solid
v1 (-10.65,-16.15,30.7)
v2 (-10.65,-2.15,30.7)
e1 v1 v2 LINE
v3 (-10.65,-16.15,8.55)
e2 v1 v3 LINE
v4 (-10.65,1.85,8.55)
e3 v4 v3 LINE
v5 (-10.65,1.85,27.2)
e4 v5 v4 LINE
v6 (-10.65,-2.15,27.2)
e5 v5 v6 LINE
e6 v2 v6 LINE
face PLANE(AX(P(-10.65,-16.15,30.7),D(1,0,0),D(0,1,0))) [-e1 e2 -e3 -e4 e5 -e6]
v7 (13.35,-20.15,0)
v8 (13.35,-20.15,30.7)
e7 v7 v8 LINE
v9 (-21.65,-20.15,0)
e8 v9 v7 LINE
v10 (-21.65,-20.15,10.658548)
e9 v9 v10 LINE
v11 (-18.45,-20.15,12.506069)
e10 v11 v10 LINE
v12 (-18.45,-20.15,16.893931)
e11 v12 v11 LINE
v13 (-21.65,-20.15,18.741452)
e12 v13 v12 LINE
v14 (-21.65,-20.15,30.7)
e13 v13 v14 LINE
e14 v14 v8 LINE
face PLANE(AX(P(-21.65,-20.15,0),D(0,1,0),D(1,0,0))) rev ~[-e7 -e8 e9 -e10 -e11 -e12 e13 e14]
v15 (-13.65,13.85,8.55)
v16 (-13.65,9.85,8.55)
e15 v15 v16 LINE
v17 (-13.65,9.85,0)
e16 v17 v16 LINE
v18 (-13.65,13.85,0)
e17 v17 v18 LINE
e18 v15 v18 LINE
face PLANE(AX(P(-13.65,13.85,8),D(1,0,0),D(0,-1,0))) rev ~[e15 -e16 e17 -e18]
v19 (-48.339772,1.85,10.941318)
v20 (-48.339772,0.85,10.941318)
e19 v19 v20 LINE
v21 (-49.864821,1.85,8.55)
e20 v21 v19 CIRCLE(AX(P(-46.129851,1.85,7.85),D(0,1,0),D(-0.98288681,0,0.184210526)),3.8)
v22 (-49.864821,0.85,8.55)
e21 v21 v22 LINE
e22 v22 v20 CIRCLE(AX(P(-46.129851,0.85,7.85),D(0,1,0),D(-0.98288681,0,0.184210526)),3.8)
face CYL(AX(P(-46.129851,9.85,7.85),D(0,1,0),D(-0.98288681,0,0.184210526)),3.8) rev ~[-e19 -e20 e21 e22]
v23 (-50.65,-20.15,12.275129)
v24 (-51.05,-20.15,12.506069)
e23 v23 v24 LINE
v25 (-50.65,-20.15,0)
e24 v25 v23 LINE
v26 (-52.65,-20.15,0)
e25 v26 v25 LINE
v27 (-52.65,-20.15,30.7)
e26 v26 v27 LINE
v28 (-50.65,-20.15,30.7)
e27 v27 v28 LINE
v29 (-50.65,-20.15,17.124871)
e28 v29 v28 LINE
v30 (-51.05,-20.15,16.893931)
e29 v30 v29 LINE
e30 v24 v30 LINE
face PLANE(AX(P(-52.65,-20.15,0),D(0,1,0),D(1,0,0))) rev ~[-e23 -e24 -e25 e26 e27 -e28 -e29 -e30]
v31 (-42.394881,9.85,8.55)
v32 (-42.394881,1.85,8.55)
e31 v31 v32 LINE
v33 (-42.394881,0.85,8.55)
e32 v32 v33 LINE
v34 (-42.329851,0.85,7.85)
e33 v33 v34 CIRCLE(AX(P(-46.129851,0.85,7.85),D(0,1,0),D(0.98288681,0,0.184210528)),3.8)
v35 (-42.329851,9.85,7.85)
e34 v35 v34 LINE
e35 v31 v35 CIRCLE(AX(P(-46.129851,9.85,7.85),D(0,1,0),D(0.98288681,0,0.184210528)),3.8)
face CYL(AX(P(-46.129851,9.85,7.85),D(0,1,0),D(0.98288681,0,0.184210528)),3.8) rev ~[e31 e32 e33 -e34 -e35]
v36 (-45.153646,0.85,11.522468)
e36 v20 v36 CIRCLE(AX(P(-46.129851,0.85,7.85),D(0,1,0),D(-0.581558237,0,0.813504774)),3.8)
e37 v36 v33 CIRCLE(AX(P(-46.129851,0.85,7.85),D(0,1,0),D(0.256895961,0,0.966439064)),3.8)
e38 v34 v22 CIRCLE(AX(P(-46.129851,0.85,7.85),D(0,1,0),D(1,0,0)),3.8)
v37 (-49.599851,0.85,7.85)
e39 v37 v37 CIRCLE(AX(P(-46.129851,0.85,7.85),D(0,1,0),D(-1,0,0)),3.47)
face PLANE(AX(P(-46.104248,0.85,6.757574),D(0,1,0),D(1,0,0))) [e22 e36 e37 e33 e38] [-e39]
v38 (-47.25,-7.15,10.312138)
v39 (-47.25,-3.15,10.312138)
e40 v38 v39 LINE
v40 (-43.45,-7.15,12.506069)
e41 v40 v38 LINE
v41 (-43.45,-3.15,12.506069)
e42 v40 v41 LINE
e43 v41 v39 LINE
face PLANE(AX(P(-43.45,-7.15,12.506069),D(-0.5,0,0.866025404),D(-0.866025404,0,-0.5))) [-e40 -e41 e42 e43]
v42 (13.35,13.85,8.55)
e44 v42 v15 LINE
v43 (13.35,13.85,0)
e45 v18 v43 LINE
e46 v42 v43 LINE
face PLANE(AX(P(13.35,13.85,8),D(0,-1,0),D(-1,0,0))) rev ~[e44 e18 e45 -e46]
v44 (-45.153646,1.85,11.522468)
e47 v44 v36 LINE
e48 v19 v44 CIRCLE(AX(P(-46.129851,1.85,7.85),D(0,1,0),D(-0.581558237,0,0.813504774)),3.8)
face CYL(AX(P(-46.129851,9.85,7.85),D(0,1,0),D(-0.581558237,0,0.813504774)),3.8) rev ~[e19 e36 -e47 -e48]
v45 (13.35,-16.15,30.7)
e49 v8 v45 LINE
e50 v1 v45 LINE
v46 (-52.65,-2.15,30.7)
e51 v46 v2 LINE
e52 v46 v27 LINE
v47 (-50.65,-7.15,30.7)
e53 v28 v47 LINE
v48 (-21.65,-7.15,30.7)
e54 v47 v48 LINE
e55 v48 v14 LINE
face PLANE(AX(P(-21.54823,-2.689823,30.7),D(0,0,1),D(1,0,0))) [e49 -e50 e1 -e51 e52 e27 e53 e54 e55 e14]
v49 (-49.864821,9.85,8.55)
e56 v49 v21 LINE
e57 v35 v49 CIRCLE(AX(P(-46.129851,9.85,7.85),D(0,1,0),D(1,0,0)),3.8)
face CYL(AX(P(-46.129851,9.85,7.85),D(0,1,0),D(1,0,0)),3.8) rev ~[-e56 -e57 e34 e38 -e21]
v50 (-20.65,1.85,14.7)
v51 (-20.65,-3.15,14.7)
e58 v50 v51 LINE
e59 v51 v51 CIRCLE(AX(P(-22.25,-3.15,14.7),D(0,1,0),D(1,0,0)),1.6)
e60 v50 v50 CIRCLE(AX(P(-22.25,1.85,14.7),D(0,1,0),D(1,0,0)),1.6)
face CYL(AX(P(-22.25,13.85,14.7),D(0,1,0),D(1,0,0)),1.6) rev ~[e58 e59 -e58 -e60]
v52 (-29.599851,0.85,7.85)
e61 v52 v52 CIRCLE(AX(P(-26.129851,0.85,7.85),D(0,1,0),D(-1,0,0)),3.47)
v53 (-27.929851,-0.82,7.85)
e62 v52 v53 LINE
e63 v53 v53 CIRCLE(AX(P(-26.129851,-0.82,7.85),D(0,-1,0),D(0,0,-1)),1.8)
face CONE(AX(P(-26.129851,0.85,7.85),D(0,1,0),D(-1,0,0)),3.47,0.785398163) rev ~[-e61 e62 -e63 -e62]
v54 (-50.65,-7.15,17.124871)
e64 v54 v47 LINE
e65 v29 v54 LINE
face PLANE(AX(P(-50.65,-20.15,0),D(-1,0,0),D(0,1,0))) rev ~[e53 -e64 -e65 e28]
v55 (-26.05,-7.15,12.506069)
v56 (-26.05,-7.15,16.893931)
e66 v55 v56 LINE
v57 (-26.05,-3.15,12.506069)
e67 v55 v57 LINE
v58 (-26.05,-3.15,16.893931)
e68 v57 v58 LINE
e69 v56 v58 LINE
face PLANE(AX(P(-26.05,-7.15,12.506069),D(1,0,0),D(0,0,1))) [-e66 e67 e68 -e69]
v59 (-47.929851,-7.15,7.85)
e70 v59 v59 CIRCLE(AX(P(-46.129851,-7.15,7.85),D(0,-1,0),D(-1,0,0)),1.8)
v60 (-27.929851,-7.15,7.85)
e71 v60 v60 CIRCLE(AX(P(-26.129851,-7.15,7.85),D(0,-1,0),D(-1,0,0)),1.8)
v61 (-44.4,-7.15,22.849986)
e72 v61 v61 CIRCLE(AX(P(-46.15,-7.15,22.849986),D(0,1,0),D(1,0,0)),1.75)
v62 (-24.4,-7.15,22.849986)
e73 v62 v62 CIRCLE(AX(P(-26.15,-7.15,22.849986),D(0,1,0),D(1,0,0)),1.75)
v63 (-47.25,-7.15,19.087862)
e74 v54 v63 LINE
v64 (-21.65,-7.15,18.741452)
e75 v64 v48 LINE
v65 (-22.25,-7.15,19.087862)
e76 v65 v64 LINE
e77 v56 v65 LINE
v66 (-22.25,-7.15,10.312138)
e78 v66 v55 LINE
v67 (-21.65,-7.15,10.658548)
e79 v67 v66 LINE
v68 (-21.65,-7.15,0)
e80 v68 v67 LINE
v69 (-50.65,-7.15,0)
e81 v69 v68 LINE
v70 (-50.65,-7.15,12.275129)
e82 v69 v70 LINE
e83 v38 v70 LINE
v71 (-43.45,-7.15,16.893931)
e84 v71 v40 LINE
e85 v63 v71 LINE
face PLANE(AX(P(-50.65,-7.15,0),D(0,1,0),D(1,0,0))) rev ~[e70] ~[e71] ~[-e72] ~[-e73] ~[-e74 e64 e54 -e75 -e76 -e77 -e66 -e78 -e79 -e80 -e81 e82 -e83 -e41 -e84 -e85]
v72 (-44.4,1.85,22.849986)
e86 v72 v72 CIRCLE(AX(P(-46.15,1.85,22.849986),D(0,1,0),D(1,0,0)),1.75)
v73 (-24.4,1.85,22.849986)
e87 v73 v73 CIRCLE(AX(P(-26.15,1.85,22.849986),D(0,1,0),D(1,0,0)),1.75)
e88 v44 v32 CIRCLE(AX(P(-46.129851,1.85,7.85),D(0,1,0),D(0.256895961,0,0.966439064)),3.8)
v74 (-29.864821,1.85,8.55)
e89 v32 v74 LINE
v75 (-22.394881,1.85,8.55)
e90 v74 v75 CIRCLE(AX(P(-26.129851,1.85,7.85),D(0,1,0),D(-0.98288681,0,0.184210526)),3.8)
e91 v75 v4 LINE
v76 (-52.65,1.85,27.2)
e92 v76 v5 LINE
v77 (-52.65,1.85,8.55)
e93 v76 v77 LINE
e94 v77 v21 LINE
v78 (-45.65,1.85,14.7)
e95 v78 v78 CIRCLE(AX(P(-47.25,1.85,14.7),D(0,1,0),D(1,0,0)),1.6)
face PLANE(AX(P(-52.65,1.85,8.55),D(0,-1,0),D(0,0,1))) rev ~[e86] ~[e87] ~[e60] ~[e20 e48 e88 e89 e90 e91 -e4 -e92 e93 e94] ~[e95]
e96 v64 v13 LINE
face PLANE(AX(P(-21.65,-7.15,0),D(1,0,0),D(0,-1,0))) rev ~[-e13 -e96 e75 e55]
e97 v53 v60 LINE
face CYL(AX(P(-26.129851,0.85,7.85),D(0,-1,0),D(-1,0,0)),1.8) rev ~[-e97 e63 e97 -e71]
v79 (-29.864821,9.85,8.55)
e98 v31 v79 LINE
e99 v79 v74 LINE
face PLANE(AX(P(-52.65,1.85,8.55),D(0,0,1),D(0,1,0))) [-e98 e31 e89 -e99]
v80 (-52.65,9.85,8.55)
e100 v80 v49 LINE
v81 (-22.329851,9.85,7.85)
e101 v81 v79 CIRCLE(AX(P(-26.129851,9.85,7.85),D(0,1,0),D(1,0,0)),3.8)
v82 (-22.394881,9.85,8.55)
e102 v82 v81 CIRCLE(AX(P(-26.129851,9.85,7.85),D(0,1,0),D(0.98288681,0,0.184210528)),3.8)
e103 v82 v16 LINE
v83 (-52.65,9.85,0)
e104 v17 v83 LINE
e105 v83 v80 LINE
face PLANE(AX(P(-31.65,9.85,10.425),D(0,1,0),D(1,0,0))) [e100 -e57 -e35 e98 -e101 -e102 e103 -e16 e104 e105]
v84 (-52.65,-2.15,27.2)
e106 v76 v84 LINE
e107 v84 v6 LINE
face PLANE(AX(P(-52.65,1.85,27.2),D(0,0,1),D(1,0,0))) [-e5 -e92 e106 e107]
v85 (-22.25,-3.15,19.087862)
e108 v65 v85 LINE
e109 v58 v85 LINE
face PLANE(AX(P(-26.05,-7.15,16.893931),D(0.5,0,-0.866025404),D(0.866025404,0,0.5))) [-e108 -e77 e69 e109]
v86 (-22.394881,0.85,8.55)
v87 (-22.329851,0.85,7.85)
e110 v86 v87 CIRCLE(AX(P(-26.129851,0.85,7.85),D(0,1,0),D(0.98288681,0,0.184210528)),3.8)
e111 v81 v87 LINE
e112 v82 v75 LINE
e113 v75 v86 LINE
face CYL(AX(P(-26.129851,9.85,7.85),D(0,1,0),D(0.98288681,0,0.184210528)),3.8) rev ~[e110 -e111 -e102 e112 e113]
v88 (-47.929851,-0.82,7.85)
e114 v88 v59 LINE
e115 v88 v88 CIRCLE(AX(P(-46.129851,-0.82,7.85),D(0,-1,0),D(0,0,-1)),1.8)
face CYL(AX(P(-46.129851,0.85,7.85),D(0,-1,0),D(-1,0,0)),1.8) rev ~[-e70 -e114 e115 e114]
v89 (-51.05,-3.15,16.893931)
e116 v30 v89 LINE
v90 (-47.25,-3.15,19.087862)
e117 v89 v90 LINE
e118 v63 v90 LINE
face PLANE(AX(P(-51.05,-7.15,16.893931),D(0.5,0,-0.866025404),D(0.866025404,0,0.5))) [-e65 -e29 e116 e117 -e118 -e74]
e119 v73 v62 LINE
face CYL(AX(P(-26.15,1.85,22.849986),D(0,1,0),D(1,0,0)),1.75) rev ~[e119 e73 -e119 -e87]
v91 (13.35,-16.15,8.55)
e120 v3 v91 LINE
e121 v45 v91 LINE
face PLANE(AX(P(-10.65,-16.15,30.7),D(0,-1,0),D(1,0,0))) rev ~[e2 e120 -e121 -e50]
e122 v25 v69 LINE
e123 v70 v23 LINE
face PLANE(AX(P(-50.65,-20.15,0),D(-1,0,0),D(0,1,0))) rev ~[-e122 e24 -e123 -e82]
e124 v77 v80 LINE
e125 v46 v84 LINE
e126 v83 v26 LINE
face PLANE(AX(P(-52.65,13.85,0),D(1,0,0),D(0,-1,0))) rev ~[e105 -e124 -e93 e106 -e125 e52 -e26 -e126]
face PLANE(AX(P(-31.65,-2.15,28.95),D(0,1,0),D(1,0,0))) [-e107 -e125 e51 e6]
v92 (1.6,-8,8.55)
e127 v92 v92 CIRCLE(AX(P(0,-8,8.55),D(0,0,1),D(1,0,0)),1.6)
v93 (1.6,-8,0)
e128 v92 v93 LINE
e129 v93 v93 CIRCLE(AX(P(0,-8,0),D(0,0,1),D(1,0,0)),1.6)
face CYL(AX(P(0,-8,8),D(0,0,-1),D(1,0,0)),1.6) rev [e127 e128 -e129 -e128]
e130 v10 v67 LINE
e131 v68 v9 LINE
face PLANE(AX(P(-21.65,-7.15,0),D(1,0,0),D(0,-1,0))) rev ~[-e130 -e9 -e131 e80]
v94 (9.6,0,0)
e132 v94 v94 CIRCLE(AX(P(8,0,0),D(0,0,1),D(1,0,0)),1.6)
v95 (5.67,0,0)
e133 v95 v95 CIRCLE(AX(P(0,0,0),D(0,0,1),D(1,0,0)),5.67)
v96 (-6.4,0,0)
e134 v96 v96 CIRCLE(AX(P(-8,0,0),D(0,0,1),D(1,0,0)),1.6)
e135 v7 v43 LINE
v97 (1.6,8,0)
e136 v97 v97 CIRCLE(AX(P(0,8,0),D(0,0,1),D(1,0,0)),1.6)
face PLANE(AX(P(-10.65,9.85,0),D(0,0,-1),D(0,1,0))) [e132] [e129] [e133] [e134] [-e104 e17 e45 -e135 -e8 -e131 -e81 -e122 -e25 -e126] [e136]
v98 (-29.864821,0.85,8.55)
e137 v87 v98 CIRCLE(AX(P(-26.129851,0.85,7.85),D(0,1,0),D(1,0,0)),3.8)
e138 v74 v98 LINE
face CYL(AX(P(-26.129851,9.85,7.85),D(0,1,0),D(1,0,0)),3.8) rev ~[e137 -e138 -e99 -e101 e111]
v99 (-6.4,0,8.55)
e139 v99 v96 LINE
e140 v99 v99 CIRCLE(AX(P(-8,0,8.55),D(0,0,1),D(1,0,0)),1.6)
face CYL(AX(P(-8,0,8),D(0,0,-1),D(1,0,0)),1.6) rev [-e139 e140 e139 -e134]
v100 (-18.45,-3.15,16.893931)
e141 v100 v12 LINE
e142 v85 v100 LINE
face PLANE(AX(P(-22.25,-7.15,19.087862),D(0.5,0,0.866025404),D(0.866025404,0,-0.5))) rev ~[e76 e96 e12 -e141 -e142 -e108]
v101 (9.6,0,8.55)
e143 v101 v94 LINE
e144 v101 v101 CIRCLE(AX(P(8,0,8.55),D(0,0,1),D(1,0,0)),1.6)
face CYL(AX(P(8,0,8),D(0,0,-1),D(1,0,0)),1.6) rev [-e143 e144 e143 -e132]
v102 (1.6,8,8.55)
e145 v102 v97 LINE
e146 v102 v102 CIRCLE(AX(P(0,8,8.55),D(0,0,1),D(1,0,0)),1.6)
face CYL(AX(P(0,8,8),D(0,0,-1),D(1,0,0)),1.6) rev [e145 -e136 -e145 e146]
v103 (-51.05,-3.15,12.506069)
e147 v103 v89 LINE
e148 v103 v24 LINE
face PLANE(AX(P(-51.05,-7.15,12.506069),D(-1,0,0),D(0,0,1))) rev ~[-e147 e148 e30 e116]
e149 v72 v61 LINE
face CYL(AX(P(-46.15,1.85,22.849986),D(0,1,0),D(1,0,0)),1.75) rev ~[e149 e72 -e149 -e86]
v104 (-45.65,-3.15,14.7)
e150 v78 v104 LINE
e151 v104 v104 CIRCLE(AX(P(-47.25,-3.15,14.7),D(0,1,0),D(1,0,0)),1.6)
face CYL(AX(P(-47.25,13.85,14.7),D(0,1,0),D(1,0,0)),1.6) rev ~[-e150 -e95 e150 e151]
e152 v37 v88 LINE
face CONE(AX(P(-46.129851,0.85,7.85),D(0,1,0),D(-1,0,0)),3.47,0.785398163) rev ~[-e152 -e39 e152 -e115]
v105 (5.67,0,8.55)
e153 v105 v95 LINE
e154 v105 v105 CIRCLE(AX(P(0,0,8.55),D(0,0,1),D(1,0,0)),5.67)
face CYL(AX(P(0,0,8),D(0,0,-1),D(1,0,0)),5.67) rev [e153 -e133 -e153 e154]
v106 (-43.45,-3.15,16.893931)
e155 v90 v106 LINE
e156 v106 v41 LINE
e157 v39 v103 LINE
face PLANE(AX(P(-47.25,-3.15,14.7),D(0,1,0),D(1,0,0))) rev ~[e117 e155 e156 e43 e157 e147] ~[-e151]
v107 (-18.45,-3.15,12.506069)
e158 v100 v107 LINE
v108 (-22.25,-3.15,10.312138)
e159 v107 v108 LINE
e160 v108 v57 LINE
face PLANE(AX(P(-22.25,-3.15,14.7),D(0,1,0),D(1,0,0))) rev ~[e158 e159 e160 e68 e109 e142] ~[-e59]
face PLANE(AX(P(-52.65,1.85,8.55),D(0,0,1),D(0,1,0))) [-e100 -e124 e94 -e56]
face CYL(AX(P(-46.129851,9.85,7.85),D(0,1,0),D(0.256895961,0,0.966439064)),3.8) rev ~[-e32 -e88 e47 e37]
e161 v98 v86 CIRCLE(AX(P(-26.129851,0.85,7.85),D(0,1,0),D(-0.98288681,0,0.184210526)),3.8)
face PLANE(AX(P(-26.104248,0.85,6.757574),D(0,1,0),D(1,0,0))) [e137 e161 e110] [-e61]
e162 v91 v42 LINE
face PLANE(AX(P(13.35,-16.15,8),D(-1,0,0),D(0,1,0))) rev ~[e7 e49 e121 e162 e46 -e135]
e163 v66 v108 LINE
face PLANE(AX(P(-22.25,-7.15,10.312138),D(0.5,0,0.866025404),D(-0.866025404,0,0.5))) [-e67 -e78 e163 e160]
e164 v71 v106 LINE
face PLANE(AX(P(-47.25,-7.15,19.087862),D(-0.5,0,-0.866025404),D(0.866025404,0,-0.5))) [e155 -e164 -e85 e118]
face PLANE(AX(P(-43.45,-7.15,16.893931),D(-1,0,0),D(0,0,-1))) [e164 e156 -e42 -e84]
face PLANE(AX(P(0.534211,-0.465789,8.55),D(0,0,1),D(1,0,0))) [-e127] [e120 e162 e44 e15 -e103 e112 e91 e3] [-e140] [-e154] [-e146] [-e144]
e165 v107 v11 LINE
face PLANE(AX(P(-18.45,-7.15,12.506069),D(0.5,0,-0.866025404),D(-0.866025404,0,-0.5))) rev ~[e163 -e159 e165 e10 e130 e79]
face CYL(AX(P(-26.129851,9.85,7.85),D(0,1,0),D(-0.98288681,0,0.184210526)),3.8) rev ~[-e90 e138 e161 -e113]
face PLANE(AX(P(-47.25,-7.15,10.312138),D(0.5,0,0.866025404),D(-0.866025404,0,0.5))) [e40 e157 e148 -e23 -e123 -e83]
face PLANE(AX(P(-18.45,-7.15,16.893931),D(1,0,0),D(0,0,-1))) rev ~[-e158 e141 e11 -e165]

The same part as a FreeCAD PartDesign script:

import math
import FreeCAD as App
import Part
import Sketcher

V = App.Vector
Q = App.Units.Quantity


def add_polygon(sketch, points):
    """Adds a closed chain of lines whose ends are joined by coincident constraints."""
    first, n = sketch.GeometryCount, len(points)
    for a, b in zip(points, points[1:] + points[:1]):
        sketch.addGeometry(Part.LineSegment(App.Vector(*a, 0), App.Vector(*b, 0)), False)
    for i in range(n):
        sketch.addConstraint(Sketcher.Constraint("Coincident", first + i, 2, first + (i + 1) % n, 1))

doc = App.newDocument("Part")
params = doc.addObject("Spreadsheet::Sheet", "Params")
for row, (alias, value) in enumerate([
    ("sketch1_diameter", "3.2 mm"),
    ("sketch1_diameter2", "11.34 mm"),
    ("sketch1_width", "2 mm"),
    ("sketch1_width2", "29 mm"),
    ("sketch1_width3", "35 mm"),
    ("pad1_length", "30.7 mm"),
    ("sketch2_diameter", "3.2 mm"),
    ("sketch2_diameter2", "11.34 mm"),
    ("sketch2_width", "24 mm"),
    ("sketch2_height", "30 mm"),
    ("pocket1_length", "22.7 mm"),
    ("sketch3_width", "8 mm"),
    ("sketch3_height", "12.3 mm"),
    ("pocket2_length", "42 mm"),
    ("sketch4_diameter", "3.2 mm"),
    ("sketch5_diameter", "3.2 mm"),
    ("sketch5_width", "42 mm"),
    ("sketch5_height", "20.85 mm"),
    ("pocket4_length", "4 mm"),
    ("sketch6_width", "4 mm"),
    ("sketch6_height", "8 mm"),
    ("pad2_length", "3 mm"),
    ("sketch7_width", "42 mm"),
    ("sketch7_height", "9.85 mm"),
    ("pocket5_length", "12 mm"),
    ("sketch8_radius", "3.8 mm"),
    ("pocket6_length", "9 mm"),
    ("sketch9_diameter", "3.5 mm"),
    ("pocket8_length", "4 mm"),
    ("pocket8_length2", "23 mm"),
    ("sketch11_diameter", "3.6 mm"),
    ("hole_diameter", "3.6 mm"),
    ("hole_csink_diameter", "6.94 mm"),
    ("sketch12_width", "42 mm"),
    ("sketch12_height", "3.5 mm"),
    ("pocket9_length", "4 mm"),
    ("sketch13_diameter", "3.2 mm"),
    ("sketch13_diameter2", "11.34 mm"),
    ("sketch13_width", "24 mm"),
    ("sketch13_width2", "27 mm"),
    ("sketch13_height", "26 mm"),
    ("pad3_length", "0.55 mm"),
], start=1):
    params.set(f"A{row}", alias)
    params.set(f"B{row}", "=" + value)
    params.setAlias(f"B{row}", alias)

body = doc.addObject("PartDesign::Body", "Body")

sketch1 = doc.addObject("Sketcher::SketchObject", "Sketch")
body.addObject(sketch1)
sketch1.AttachmentSupport = (doc.XY_Plane, [""])
sketch1.MapMode = "FlatFace"
add_polygon(sketch1, [(-52.6, 13.8), (-52.6, -20.1), (-50.6, -20.1), (-50.6, -7.2), (-21.6, -7.2), (-21.6, -20.1), (13.3, -20.1), (13.3, 13.8)])
sketch1.addGeometry(Part.Circle(V(0, -8, 0), V(0, 0, 1), 1.6), False)
sketch1.addGeometry(Part.Circle(V(-8, 0, 0), V(0, 0, 1), 1.6), False)
sketch1.addGeometry(Part.Circle(V(0, 0, 0), V(0, 0, 1), 5.7), False)
sketch1.addGeometry(Part.Circle(V(0, 8, 0), V(0, 0, 1), 1.6), False)
sketch1.addGeometry(Part.Circle(V(8, 0, 0), V(0, 0, 1), 1.6), False)
sketch1.addConstraint(Sketcher.Constraint("Vertical", 0))
sketch1.addConstraint(Sketcher.Constraint("Horizontal", 1))
sketch1.addConstraint(Sketcher.Constraint("Vertical", 2))
sketch1.addConstraint(Sketcher.Constraint("Horizontal", 3))
sketch1.addConstraint(Sketcher.Constraint("Vertical", 4))
sketch1.addConstraint(Sketcher.Constraint("Horizontal", 5))
sketch1.addConstraint(Sketcher.Constraint("Vertical", 6))
sketch1.addConstraint(Sketcher.Constraint("Horizontal", 7))
sketch1.addConstraint(Sketcher.Constraint("Coincident", 10, 3, -1, 1))
sketch1.addConstraint(Sketcher.Constraint("Equal", 8, 9))
sketch1.addConstraint(Sketcher.Constraint("Equal", 9, 11))
sketch1.addConstraint(Sketcher.Constraint("Equal", 11, 12))
sketch1.addConstraint(Sketcher.Constraint("Symmetric", 8, 3, 11, 3, -1, 1))
sketch1.addConstraint(Sketcher.Constraint("Symmetric", 9, 3, 12, 3, -1, 1))
sketch1.addConstraint(Sketcher.Constraint("PointOnObject", 8, 3, -2))
sketch1.addConstraint(Sketcher.Constraint("PointOnObject", 9, 3, -1))
sketch1.addConstraint(Sketcher.Constraint("Horizontal", 1, 2, 4, 2))
sketch1.addConstraint(Sketcher.Constraint("Diameter", 8, Q("3.2 mm")))
sketch1.addConstraint(Sketcher.Constraint("Diameter", 10, Q("11.34 mm")))
sketch1.addConstraint(Sketcher.Constraint("DistanceX", 1, 1, 1, 2, Q("2 mm")))
sketch1.addConstraint(Sketcher.Constraint("DistanceX", 3, 1, 3, 2, Q("29 mm")))
sketch1.addConstraint(Sketcher.Constraint("DistanceX", 5, 1, 5, 2, Q("35 mm")))
sketch1.addConstraint(Sketcher.Constraint("DistanceY", 0, 2, 0, 1, Q("34 mm")))
sketch1.addConstraint(Sketcher.Constraint("DistanceY", 2, 1, 2, 2, Q("13 mm")))
sketch1.addConstraint(Sketcher.Constraint("DistanceY", 8, 3, -1, 1, Q("8 mm")))
sketch1.addConstraint(Sketcher.Constraint("DistanceX", 9, 3, -1, 1, Q("8 mm")))
sketch1.addConstraint(Sketcher.Constraint("DistanceX", 0, 2, -1, 1, Q("52.65 mm")))
sketch1.addConstraint(Sketcher.Constraint("DistanceY", 0, 2, -1, 1, Q("20.15 mm")))
sketch1.setExpression("Constraints[25]", "Params.sketch1_diameter")
sketch1.setExpression("Constraints[26]", "Params.sketch1_diameter2")
sketch1.setExpression("Constraints[27]", "Params.sketch1_width")
sketch1.setExpression("Constraints[28]", "Params.sketch1_width2")
sketch1.setExpression("Constraints[29]", "Params.sketch1_width3")
pad1 = doc.addObject("PartDesign::Pad", "Pad")
body.addObject(pad1)
pad1.Profile = sketch1
pad1.setExpression("Length", "Params.pad1_length")

sketch2 = doc.addObject("Sketcher::SketchObject", "Sketch001")
body.addObject(sketch2)
sketch2.AttachmentSupport = (doc.XY_Plane, [""])
sketch2.MapMode = "FlatFace"
sketch2.AttachmentOffset = App.Placement(V(0, 0, 30.7), App.Rotation())
add_polygon(sketch2, [(-10.7, 13.8), (-10.7, -16.1), (13.3, -16.1), (13.3, 13.8)])
sketch2.addGeometry(Part.Circle(V(0, -8, 0), V(0, 0, 1), 1.6), False)
sketch2.addGeometry(Part.Circle(V(-8, 0, 0), V(0, 0, 1), 1.6), False)
sketch2.addGeometry(Part.Circle(V(0, 0, 0), V(0, 0, 1), 5.7), False)
sketch2.addGeometry(Part.Circle(V(8, 0, 0), V(0, 0, 1), 1.6), False)
sketch2.addGeometry(Part.Circle(V(0, 8, 0), V(0, 0, 1), 1.6), False)
sketch2.addConstraint(Sketcher.Constraint("Vertical", 0))
sketch2.addConstraint(Sketcher.Constraint("Horizontal", 1))
sketch2.addConstraint(Sketcher.Constraint("Vertical", 2))
sketch2.addConstraint(Sketcher.Constraint("Horizontal", 3))
sketch2.addConstraint(Sketcher.Constraint("Coincident", 6, 3, -1, 1))
sketch2.addConstraint(Sketcher.Constraint("Equal", 4, 5))
sketch2.addConstraint(Sketcher.Constraint("Equal", 5, 7))
sketch2.addConstraint(Sketcher.Constraint("Equal", 7, 8))
sketch2.addConstraint(Sketcher.Constraint("Symmetric", 5, 3, 7, 3, -1, 1))
sketch2.addConstraint(Sketcher.Constraint("Symmetric", 4, 3, 8, 3, -1, 1))
sketch2.addConstraint(Sketcher.Constraint("PointOnObject", 4, 3, -2))
sketch2.addConstraint(Sketcher.Constraint("PointOnObject", 5, 3, -1))
sketch2.addConstraint(Sketcher.Constraint("Diameter", 4, Q("3.2 mm")))
sketch2.addConstraint(Sketcher.Constraint("Diameter", 6, Q("11.34 mm")))
sketch2.addConstraint(Sketcher.Constraint("DistanceX", 1, 1, 1, 2, Q("24 mm")))
sketch2.addConstraint(Sketcher.Constraint("DistanceY", 0, 2, 0, 1, Q("30 mm")))
sketch2.addConstraint(Sketcher.Constraint("DistanceY", 4, 3, -1, 1, Q("8 mm")))
sketch2.addConstraint(Sketcher.Constraint("DistanceX", 5, 3, -1, 1, Q("8 mm")))
sketch2.addConstraint(Sketcher.Constraint("DistanceX", 0, 2, -1, 1, Q("10.65 mm")))
sketch2.addConstraint(Sketcher.Constraint("DistanceY", 0, 2, -1, 1, Q("16.15 mm")))
sketch2.setExpression("Constraints[16]", "Params.sketch2_diameter")
sketch2.setExpression("Constraints[17]", "Params.sketch2_diameter2")
sketch2.setExpression("Constraints[18]", "Params.sketch2_width")
sketch2.setExpression("Constraints[19]", "Params.sketch2_height")
pocket1 = doc.addObject("PartDesign::Pocket", "Pocket")
body.addObject(pocket1)
pocket1.Profile = sketch2
pocket1.setExpression("Length", "Params.pocket1_length")

sketch3 = doc.addObject("Sketcher::SketchObject", "Sketch002")
body.addObject(sketch3)
sketch3.AttachmentSupport = (doc.YZ_Plane, [""])
sketch3.MapMode = "FlatFace"
sketch3.AttachmentOffset = App.Placement(V(0, 0, -52.65), App.Rotation())
add_polygon(sketch3, [(10, 9), (2, 9), (2, 21), (10, 21)])
sketch3.addConstraint(Sketcher.Constraint("Horizontal", 0))
sketch3.addConstraint(Sketcher.Constraint("Vertical", 1))
sketch3.addConstraint(Sketcher.Constraint("Horizontal", 2))
sketch3.addConstraint(Sketcher.Constraint("Vertical", 3))
sketch3.addConstraint(Sketcher.Constraint("DistanceX", 0, 2, 0, 1, Q("8 mm")))
sketch3.addConstraint(Sketcher.Constraint("DistanceY", 1, 1, 1, 2, Q("12.3 mm")))
sketch3.addConstraint(Sketcher.Constraint("DistanceX", -1, 1, 0, 2, Q("1.85 mm")))
sketch3.addConstraint(Sketcher.Constraint("DistanceY", -1, 1, 0, 2, Q("8.55 mm")))
sketch3.setExpression("Constraints[8]", "Params.sketch3_width")
sketch3.setExpression("Constraints[9]", "Params.sketch3_height")
pocket2 = doc.addObject("PartDesign::Pocket", "Pocket001")
body.addObject(pocket2)
pocket2.Profile = sketch3
pocket2.setExpression("Length", "Params.pocket2_length")
pocket2.Reversed = True

sketch4 = doc.addObject("Sketcher::SketchObject", "Sketch003")
body.addObject(sketch4)
sketch4.AttachmentSupport = (doc.XZ_Plane, [""])
sketch4.MapMode = "FlatFace"
sketch4.AttachmentOffset = App.Placement(V(0, 0, -13.85), App.Rotation())
sketch4.addGeometry(Part.Circle(V(-47.2, 14.7, 0), V(0, 0, 1), 1.6), False)
sketch4.addGeometry(Part.Circle(V(-22.2, 14.7, 0), V(0, 0, 1), 1.6), False)
sketch4.addConstraint(Sketcher.Constraint("Equal", 0, 1))
sketch4.addConstraint(Sketcher.Constraint("Horizontal", 0, 3, 1, 3))
sketch4.addConstraint(Sketcher.Constraint("Diameter", 0, Q("3.2 mm")))
sketch4.addConstraint(Sketcher.Constraint("DistanceX", 0, 3, 1, 3, Q("25 mm")))
sketch4.addConstraint(Sketcher.Constraint("DistanceY", -1, 1, 0, 3, Q("14.7 mm")))
sketch4.addConstraint(Sketcher.Constraint("DistanceX", 0, 3, -1, 1, Q("47.25 mm")))
sketch4.setExpression("Constraints[2]", "Params.sketch4_diameter")
pocket3 = doc.addObject("PartDesign::Pocket", "Pocket002")
body.addObject(pocket3)
pocket3.Profile = sketch4
pocket3.Type = "ThroughAll"
pocket3.Reversed = True

sketch5 = doc.addObject("Sketcher::SketchObject", "Sketch004")
body.addObject(sketch5)
sketch5.AttachmentSupport = (doc.XZ_Plane, [""])
sketch5.MapMode = "FlatFace"
sketch5.AttachmentOffset = App.Placement(V(0, 0, -13.85), App.Rotation())
add_polygon(sketch5, [(-52.6, 20.9), (-10.7, 20.9), (-10.7, 0), (-52.6, 0)])
sketch5.addGeometry(Part.Circle(V(-47.2, 14.7, 0), V(0, 0, 1), 1.6), False)
sketch5.addGeometry(Part.Circle(V(-22.2, 14.7, 0), V(0, 0, 1), 1.6), False)
sketch5.addConstraint(Sketcher.Constraint("Horizontal", 0))
sketch5.addConstraint(Sketcher.Constraint("Vertical", 1))
sketch5.addConstraint(Sketcher.Constraint("Horizontal", 2))
sketch5.addConstraint(Sketcher.Constraint("Vertical", 3))
sketch5.addConstraint(Sketcher.Constraint("Equal", 4, 5))
sketch5.addConstraint(Sketcher.Constraint("PointOnObject", 1, 2, -1))
sketch5.addConstraint(Sketcher.Constraint("Horizontal", 4, 3, 5, 3))
sketch5.addConstraint(Sketcher.Constraint("Diameter", 4, Q("3.2 mm")))
sketch5.addConstraint(Sketcher.Constraint("DistanceX", 0, 1, 0, 2, Q("42 mm")))
sketch5.addConstraint(Sketcher.Constraint("DistanceX", 4, 3, 5, 3, Q("25 mm")))
sketch5.addConstraint(Sketcher.Constraint("DistanceY", 1, 2, 1, 1, Q("20.85 mm")))
sketch5.addConstraint(Sketcher.Constraint("DistanceY", -1, 1, 4, 3, Q("14.7 mm")))
sketch5.addConstraint(Sketcher.Constraint("DistanceX", 5, 3, 0, 2, Q("11.6 mm")))
sketch5.addConstraint(Sketcher.Constraint("DistanceX", 4, 3, -1, 1, Q("47.25 mm")))
sketch5.setExpression("Constraints[11]", "Params.sketch5_diameter")
sketch5.setExpression("Constraints[12]", "Params.sketch5_width")
sketch5.setExpression("Constraints[14]", "Params.sketch5_height")
pocket4 = doc.addObject("PartDesign::Pocket", "Pocket003")
body.addObject(pocket4)
pocket4.Profile = sketch5
pocket4.setExpression("Length", "Params.pocket4_length")
pocket4.Reversed = True

sketch6 = doc.addObject("Sketcher::SketchObject", "Sketch005")
body.addObject(sketch6)
sketch6.AttachmentSupport = (doc.YZ_Plane, [""])
sketch6.MapMode = "FlatFace"
sketch6.AttachmentOffset = App.Placement(V(0, 0, -10.65), App.Rotation())
add_polygon(sketch6, [(13.8, 0), (9.8, 0), (9.8, 8), (13.8, 8)])
sketch6.addConstraint(Sketcher.Constraint("Horizontal", 0))
sketch6.addConstraint(Sketcher.Constraint("Vertical", 1))
sketch6.addConstraint(Sketcher.Constraint("Horizontal", 2))
sketch6.addConstraint(Sketcher.Constraint("Vertical", 3))
sketch6.addConstraint(Sketcher.Constraint("PointOnObject", 0, 2, -1))
sketch6.addConstraint(Sketcher.Constraint("DistanceX", 0, 2, 0, 1, Q("4 mm")))
sketch6.addConstraint(Sketcher.Constraint("DistanceY", 1, 1, 1, 2, Q("8 mm")))
sketch6.addConstraint(Sketcher.Constraint("DistanceX", -1, 1, 0, 2, Q("9.85 mm")))
sketch6.setExpression("Constraints[9]", "Params.sketch6_width")
sketch6.setExpression("Constraints[10]", "Params.sketch6_height")
pad2 = doc.addObject("PartDesign::Pad", "Pad001")
body.addObject(pad2)
pad2.Profile = sketch6
pad2.setExpression("Length", "Params.pad2_length")
pad2.Reversed = True

sketch7 = doc.addObject("Sketcher::SketchObject", "Sketch006")
body.addObject(sketch7)
sketch7.AttachmentSupport = (doc.XZ_Plane, [""])
sketch7.MapMode = "FlatFace"
sketch7.AttachmentOffset = App.Placement(V(0, 0, -13.85), App.Rotation())
add_polygon(sketch7, [(-53, 21), (-53, 31), (-11, 31), (-11, 21)])
sketch7.addConstraint(Sketcher.Constraint("Vertical", 0))
sketch7.addConstraint(Sketcher.Constraint("Horizontal", 1))
sketch7.addConstraint(Sketcher.Constraint("Vertical", 2))
sketch7.addConstraint(Sketcher.Constraint("Horizontal", 3))
sketch7.addConstraint(Sketcher.Constraint("DistanceX", 1, 1, 1, 2, Q("42 mm")))
sketch7.addConstraint(Sketcher.Constraint("DistanceY", 0, 1, 0, 2, Q("9.85 mm")))
sketch7.addConstraint(Sketcher.Constraint("DistanceY", -1, 1, 0, 2, Q("30.7 mm")))
sketch7.addConstraint(Sketcher.Constraint("DistanceX", 0, 2, -1, 1, Q("52.65 mm")))
sketch7.setExpression("Constraints[8]", "Params.sketch7_width")
sketch7.setExpression("Constraints[9]", "Params.sketch7_height")
pocket5 = doc.addObject("PartDesign::Pocket", "Pocket004")
body.addObject(pocket5)
pocket5.Profile = sketch7
pocket5.setExpression("Length", "Params.pocket5_length")
pocket5.Reversed = True

sketch8 = doc.addObject("Sketcher::SketchObject", "Sketch007")
body.addObject(sketch8)
sketch8.AttachmentSupport = (doc.XZ_Plane, [""])
sketch8.MapMode = "FlatFace"
sketch8.AttachmentOffset = App.Placement(V(0, 0, -9.85), App.Rotation())
sketch8.addGeometry(Part.ArcOfCircle(Part.Circle(V(-46.1, 7.8, 0), V(0, 0, 1), 3.8), math.radians(169), math.radians(360)), False)
sketch8.addGeometry(Part.ArcOfCircle(Part.Circle(V(-46.1, 7.8, 0), V(0, 0, 1), 3.8), math.radians(126), math.radians(169)), False)
sketch8.addGeometry(Part.ArcOfCircle(Part.Circle(V(-46.1, 7.9, 0), V(0, 0, 1), 3.8), math.radians(75), math.radians(126)), False)
sketch8.addGeometry(Part.ArcOfCircle(Part.Circle(V(-46.1, 7.8, 0), V(0, 0, 1), 3.8), math.radians(11), math.radians(75)), False)
sketch8.addGeometry(Part.ArcOfCircle(Part.Circle(V(-46.1, 7.9, 0), V(0, 0, 1), 3.8), math.radians(0), math.radians(10.62)), False)
sketch8.addGeometry(Part.ArcOfCircle(Part.Circle(V(-26.1, 7.8, 0), V(0, 0, 1), 3.8), math.radians(169), math.radians(360)), False)
sketch8.addGeometry(Part.ArcOfCircle(Part.Circle(V(-26.1, 7.8, 0), V(0, 0, 1), 3.8), math.radians(11), math.radians(169)), False)
sketch8.addGeometry(Part.ArcOfCircle(Part.Circle(V(-26.1, 7.9, 0), V(0, 0, 1), 3.8), math.radians(0), math.radians(10.62)), False)
sketch8.addConstraint(Sketcher.Constraint("Tangent", 0, 1, 1, 2))
sketch8.addConstraint(Sketcher.Constraint("Tangent", 1, 1, 2, 2))
sketch8.addConstraint(Sketcher.Constraint("Tangent", 2, 1, 3, 2))
sketch8.addConstraint(Sketcher.Constraint("Tangent", 3, 1, 4, 2))
sketch8.addConstraint(Sketcher.Constraint("Tangent", 4, 1, 0, 2))
sketch8.addConstraint(Sketcher.Constraint("Tangent", 5, 1, 6, 2))
sketch8.addConstraint(Sketcher.Constraint("Tangent", 6, 1, 7, 2))
sketch8.addConstraint(Sketcher.Constraint("Tangent", 7, 1, 5, 2))
sketch8.addConstraint(Sketcher.Constraint("Coincident", 2, 3, 0, 3))
sketch8.addConstraint(Sketcher.Constraint("Equal", 4, 5))
sketch8.addConstraint(Sketcher.Constraint("Horizontal", 4, 3, 5, 3))
sketch8.addConstraint(Sketcher.Constraint("Horizontal", 0, 1, 3, 1))
sketch8.addConstraint(Sketcher.Constraint("Horizontal", 7, 3, 4, 1))
sketch8.addConstraint(Sketcher.Constraint("Horizontal", 3, 1, 5, 1))
sketch8.addConstraint(Sketcher.Constraint("Horizontal", 5, 1, 6, 1))
sketch8.addConstraint(Sketcher.Constraint("Horizontal", 4, 1, 7, 1))
sketch8.addConstraint(Sketcher.Constraint("Radius", 0, Q("3.8 mm")))
sketch8.addConstraint(Sketcher.Constraint("DistanceX", 4, 3, 5, 3, Q("20 mm")))
sketch8.addConstraint(Sketcher.Constraint("DistanceY", 2, 3, 0, 1, Q("0.7 mm")))
sketch8.addConstraint(Sketcher.Constraint("DistanceY", -1, 1, 0, 3, Q("7.85 mm")))
sketch8.addConstraint(Sketcher.Constraint("DistanceX", 0, 3, -1, 1, Q("46.129851 mm")))
sketch8.addConstraint(Sketcher.Constraint("DistanceY", -1, 1, 1, 1, Q("10.941318 mm")))
sketch8.addConstraint(Sketcher.Constraint("DistanceY", -1, 1, 2, 1, Q("11.522468 mm")))
sketch8.setExpression("Constraints[16]", "Params.sketch8_radius")
pocket6 = doc.addObject("PartDesign::Pocket", "Pocket005")
body.addObject(pocket6)
pocket6.Profile = sketch8
pocket6.setExpression("Length", "Params.pocket6_length")
pocket6.Reversed = True

sketch9 = doc.addObject("Sketcher::SketchObject", "Sketch008")
body.addObject(sketch9)
sketch9.AttachmentSupport = (doc.XZ_Plane, [""])
sketch9.MapMode = "FlatFace"
sketch9.AttachmentOffset = App.Placement(V(0, 0, -1.85), App.Rotation())
sketch9.addGeometry(Part.ArcOfCircle(Part.Circle(V(-46.1, 7.8, 0), V(0, 0, 1), 1.8), math.radians(24), math.radians(156)), False)
sketch9.addGeometry(Part.ArcOfCircle(Part.Circle(V(-46.1, 7.8, 0), V(0, 0, 1), 1.8), math.radians(0), math.radians(24)), False)
sketch9.addGeometry(Part.ArcOfCircle(Part.Circle(V(-46.1, 7.8, 0), V(0, 0, 1), 1.8), math.radians(156), math.radians(360)), False)
sketch9.addGeometry(Part.ArcOfCircle(Part.Circle(V(-26.1, 7.8, 0), V(0, 0, 1), 1.8), math.radians(24), math.radians(156)), False)
sketch9.addGeometry(Part.ArcOfCircle(Part.Circle(V(-26.1, 7.8, 0), V(0, 0, 1), 1.8), math.radians(0), math.radians(24)), False)
sketch9.addGeometry(Part.ArcOfCircle(Part.Circle(V(-26.1, 7.8, 0), V(0, 0, 1), 1.8), math.radians(156), math.radians(360)), False)
sketch9.addGeometry(Part.Circle(V(-26.1, 22.8, 0), V(0, 0, 1), 1.8), False)
sketch9.addGeometry(Part.Circle(V(-46.1, 22.8, 0), V(0, 0, 1), 1.8), False)
sketch9.addConstraint(Sketcher.Constraint("Tangent", 0, 1, 1, 2))
sketch9.addConstraint(Sketcher.Constraint("Tangent", 1, 1, 2, 2))
sketch9.addConstraint(Sketcher.Constraint("Tangent", 2, 1, 0, 2))
sketch9.addConstraint(Sketcher.Constraint("Tangent", 3, 1, 4, 2))
sketch9.addConstraint(Sketcher.Constraint("Tangent", 4, 1, 5, 2))
sketch9.addConstraint(Sketcher.Constraint("Tangent", 5, 1, 3, 2))
sketch9.addConstraint(Sketcher.Constraint("Equal", 2, 3))
sketch9.addConstraint(Sketcher.Constraint("Equal", 5, 6))
sketch9.addConstraint(Sketcher.Constraint("Equal", 6, 7))
sketch9.addConstraint(Sketcher.Constraint("Horizontal", 2, 3, 3, 3))
sketch9.addConstraint(Sketcher.Constraint("Horizontal", 6, 3, 7, 3))
sketch9.addConstraint(Sketcher.Constraint("Horizontal", 5, 3, 1, 1))
sketch9.addConstraint(Sketcher.Constraint("Horizontal", 0, 1, 2, 1))
sketch9.addConstraint(Sketcher.Constraint("Horizontal", 2, 1, 3, 1))
sketch9.addConstraint(Sketcher.Constraint("Horizontal", 1, 1, 4, 1))
sketch9.addConstraint(Sketcher.Constraint("Horizontal", 3, 1, 5, 1))
sketch9.addConstraint(Sketcher.Constraint("Diameter", 6, Q("3.5 mm")))
sketch9.addConstraint(Sketcher.Constraint("DistanceX", 2, 3, 3, 3, Q("20 mm")))
sketch9.addConstraint(Sketcher.Constraint("DistanceX", 7, 3, 6, 3, Q("20 mm")))
sketch9.addConstraint(Sketcher.Constraint("DistanceY", 2, 3, 0, 1, Q("0.7 mm")))
sketch9.addConstraint(Sketcher.Constraint("DistanceY", -1, 1, 0, 3, Q("7.85 mm")))
sketch9.addConstraint(Sketcher.Constraint("DistanceX", 6, 3, -1, 1, Q("26.15 mm")))
sketch9.addConstraint(Sketcher.Constraint("DistanceX", 0, 3, -1, 1, Q("46.129851 mm")))
sketch9.addConstraint(Sketcher.Constraint("DistanceY", -1, 1, 6, 3, Q("22.849986 mm")))
sketch9.setExpression("Constraints[16]", "Params.sketch9_diameter")
pocket7 = doc.addObject("PartDesign::Pocket", "Pocket006")
body.addObject(pocket7)
pocket7.Profile = sketch9
pocket7.Type = "ThroughAll"
pocket7.Reversed = True

sketch10 = doc.addObject("Sketcher::SketchObject", "Sketch009")
body.addObject(sketch10)
sketch10.AttachmentSupport = (doc.XZ_Plane, [""])
sketch10.MapMode = "FlatFace"
sketch10.AttachmentOffset = App.Placement(V(0, 0, 7.15), App.Rotation())
add_polygon(sketch10, [(-47.2, 10.3), (-51, 12.5), (-51, 16.9), (-47.2, 19.1), (-43.5, 16.9), (-43.5, 12.5)])
add_polygon(sketch10, [(-22.2, 10.3), (-26.1, 12.5), (-26.1, 16.9), (-22.2, 19.1), (-18.4, 16.9), (-18.4, 12.5)])
sketch10.addConstraint(Sketcher.Constraint("Vertical", 1))
sketch10.addConstraint(Sketcher.Constraint("Vertical", 4))
sketch10.addConstraint(Sketcher.Constraint("Vertical", 7))
sketch10.addConstraint(Sketcher.Constraint("Vertical", 10))
sketch10.addConstraint(Sketcher.Constraint("Parallel", 0, 3))
sketch10.addConstraint(Sketcher.Constraint("Parallel", 2, 5))
sketch10.addConstraint(Sketcher.Constraint("Parallel", 3, 6))
sketch10.addConstraint(Sketcher.Constraint("Parallel", 5, 8))
sketch10.addConstraint(Sketcher.Constraint("Parallel", 6, 9))
sketch10.addConstraint(Sketcher.Constraint("Parallel", 8, 11))
sketch10.addConstraint(Sketcher.Constraint("Horizontal", 1, 2, 3, 2))
sketch10.addConstraint(Sketcher.Constraint("Horizontal", 0, 2, 4, 2))
sketch10.addConstraint(Sketcher.Constraint("Horizontal", 4, 2, 6, 2))
sketch10.addConstraint(Sketcher.Constraint("Horizontal", 3, 2, 7, 2))
sketch10.addConstraint(Sketcher.Constraint("Horizontal", 2, 2, 8, 2))
sketch10.addConstraint(Sketcher.Constraint("Horizontal", 7, 2, 9, 2))
sketch10.addConstraint(Sketcher.Constraint("Horizontal", 6, 2, 10, 2))
sketch10.addConstraint(Sketcher.Constraint("Vertical", 2, 2, 5, 2))
sketch10.addConstraint(Sketcher.Constraint("Angle", 0, Q("150 deg")))
sketch10.addConstraint(Sketcher.Constraint("DistanceX", 0, 2, 6, 2, Q("25 mm")))
sketch10.addConstraint(Sketcher.Constraint("DistanceX", 1, 2, 2, 2, Q("3.8 mm")))
sketch10.addConstraint(Sketcher.Constraint("DistanceX", 0, 2, -1, 1, Q("51.05 mm")))
sketch10.addConstraint(Sketcher.Constraint("DistanceY", 1, 1, 1, 2, Q("4.387862 mm")))
sketch10.addConstraint(Sketcher.Constraint("DistanceY", -1, 1, 0, 2, Q("12.506069 mm")))
pocket8 = doc.addObject("PartDesign::Pocket", "Pocket007")
body.addObject(pocket8)
pocket8.Profile = sketch10
pocket8.Type = "TwoLengths"
pocket8.setExpression("Length", "Params.pocket8_length")
pocket8.setExpression("Length2", "Params.pocket8_length2")

sketch11 = doc.addObject("Sketcher::SketchObject", "Sketch010")
body.addObject(sketch11)
sketch11.AttachmentSupport = (doc.XZ_Plane, [""])
sketch11.MapMode = "FlatFace"
sketch11.AttachmentOffset = App.Placement(V(0, 0, -0.85), App.Rotation())
sketch11.addGeometry(Part.Circle(V(-46.1, 7.8, 0), V(0, 0, 1), 1.8), False)
sketch11.addGeometry(Part.Circle(V(-26.1, 7.8, 0), V(0, 0, 1), 1.8), False)
sketch11.addConstraint(Sketcher.Constraint("Equal", 0, 1))
sketch11.addConstraint(Sketcher.Constraint("Horizontal", 0, 3, 1, 3))
sketch11.addConstraint(Sketcher.Constraint("Diameter", 0, Q("3.6 mm")))
sketch11.addConstraint(Sketcher.Constraint("DistanceX", 0, 3, 1, 3, Q("20 mm")))
sketch11.addConstraint(Sketcher.Constraint("DistanceY", -1, 1, 0, 3, Q("7.85 mm")))
sketch11.addConstraint(Sketcher.Constraint("DistanceX", 0, 3, -1, 1, Q("46.129851 mm")))
sketch11.setExpression("Constraints[2]", "Params.sketch11_diameter")
doc.recompute()
hole = doc.addObject("PartDesign::Hole", "Hole")
body.addObject(hole)
hole.Profile = sketch11
hole.ThreadType = "None"
hole.setExpression("Diameter", "Params.hole_diameter")
hole.DepthType = "ThroughAll"
hole.HoleCutType = "Countersink"
hole.setExpression("HoleCutDiameter", "Params.hole_csink_diameter")
hole.HoleCutCountersinkAngle = 90
hole.Reversed = True

sketch12 = doc.addObject("Sketcher::SketchObject", "Sketch011")
body.addObject(sketch12)
sketch12.AttachmentSupport = (doc.XZ_Plane, [""])
sketch12.MapMode = "FlatFace"
sketch12.AttachmentOffset = App.Placement(V(0, 0, -1.85), App.Rotation())
add_polygon(sketch12, [(-52.6, 27.2), (-52.6, 30.7), (-10.7, 30.7), (-10.7, 27.2)])
sketch12.addConstraint(Sketcher.Constraint("Vertical", 0))
sketch12.addConstraint(Sketcher.Constraint("Horizontal", 1))
sketch12.addConstraint(Sketcher.Constraint("Vertical", 2))
sketch12.addConstraint(Sketcher.Constraint("Horizontal", 3))
sketch12.addConstraint(Sketcher.Constraint("DistanceX", 1, 1, 1, 2, Q("42 mm")))
sketch12.addConstraint(Sketcher.Constraint("DistanceY", 0, 1, 0, 2, Q("3.5 mm")))
sketch12.addConstraint(Sketcher.Constraint("DistanceY", -1, 1, 0, 2, Q("30.7 mm")))
sketch12.addConstraint(Sketcher.Constraint("DistanceX", 0, 2, -1, 1, Q("52.65 mm")))
sketch12.setExpression("Constraints[8]", "Params.sketch12_width")
sketch12.setExpression("Constraints[9]", "Params.sketch12_height")
pocket9 = doc.addObject("PartDesign::Pocket", "Pocket008")
body.addObject(pocket9)
pocket9.Profile = sketch12
pocket9.setExpression("Length", "Params.pocket9_length")
pocket9.Reversed = True

sketch13 = doc.addObject("Sketcher::SketchObject", "Sketch012")
body.addObject(sketch13)
sketch13.AttachmentSupport = (doc.XY_Plane, [""])
sketch13.MapMode = "FlatFace"
sketch13.AttachmentOffset = App.Placement(V(0, 0, 8), App.Rotation())
add_polygon(sketch13, [(-10.7, 9.8), (-10.7, -16.1), (13.3, -16.1), (13.3, 13.8), (-13.7, 13.8), (-13.7, 9.8)])
sketch13.addGeometry(Part.Circle(V(0, -8, 0), V(0, 0, 1), 1.6), False)
sketch13.addGeometry(Part.Circle(V(-8, 0, 0), V(0, 0, 1), 1.6), False)
sketch13.addGeometry(Part.Circle(V(0, 0, 0), V(0, 0, 1), 5.7), False)
sketch13.addGeometry(Part.Circle(V(8, 0, 0), V(0, 0, 1), 1.6), False)
sketch13.addGeometry(Part.Circle(V(0, 8, 0), V(0, 0, 1), 1.6), False)
sketch13.addConstraint(Sketcher.Constraint("Vertical", 0))
sketch13.addConstraint(Sketcher.Constraint("Horizontal", 1))
sketch13.addConstraint(Sketcher.Constraint("Vertical", 2))
sketch13.addConstraint(Sketcher.Constraint("Horizontal", 3))
sketch13.addConstraint(Sketcher.Constraint("Vertical", 4))
sketch13.addConstraint(Sketcher.Constraint("Horizontal", 5))
sketch13.addConstraint(Sketcher.Constraint("Coincident", 8, 3, -1, 1))
sketch13.addConstraint(Sketcher.Constraint("Equal", 6, 7))
sketch13.addConstraint(Sketcher.Constraint("Equal", 7, 9))
sketch13.addConstraint(Sketcher.Constraint("Equal", 9, 10))
sketch13.addConstraint(Sketcher.Constraint("Symmetric", 7, 3, 9, 3, -1, 1))
sketch13.addConstraint(Sketcher.Constraint("Symmetric", 6, 3, 10, 3, -1, 1))
sketch13.addConstraint(Sketcher.Constraint("PointOnObject", 6, 3, -2))
sketch13.addConstraint(Sketcher.Constraint("PointOnObject", 7, 3, -1))
sketch13.addConstraint(Sketcher.Constraint("Diameter", 6, Q("3.2 mm")))
sketch13.addConstraint(Sketcher.Constraint("Diameter", 8, Q("11.34 mm")))
sketch13.addConstraint(Sketcher.Constraint("DistanceX", 1, 1, 1, 2, Q("24 mm")))
sketch13.addConstraint(Sketcher.Constraint("DistanceX", 3, 2, 3, 1, Q("27 mm")))
sketch13.addConstraint(Sketcher.Constraint("DistanceY", 0, 2, 0, 1, Q("26 mm")))
sketch13.addConstraint(Sketcher.Constraint("DistanceY", 2, 1, 2, 2, Q("30 mm")))
sketch13.addConstraint(Sketcher.Constraint("DistanceY", 6, 3, -1, 1, Q("8 mm")))
sketch13.addConstraint(Sketcher.Constraint("DistanceX", 7, 3, -1, 1, Q("8 mm")))
sketch13.addConstraint(Sketcher.Constraint("DistanceX", 0, 2, -1, 1, Q("10.65 mm")))
sketch13.addConstraint(Sketcher.Constraint("DistanceY", 0, 2, -1, 1, Q("16.15 mm")))
sketch13.setExpression("Constraints[20]", "Params.sketch13_diameter")
sketch13.setExpression("Constraints[21]", "Params.sketch13_diameter2")
sketch13.setExpression("Constraints[22]", "Params.sketch13_width")
sketch13.setExpression("Constraints[23]", "Params.sketch13_width2")
sketch13.setExpression("Constraints[24]", "Params.sketch13_height")
pad3 = doc.addObject("PartDesign::Pad", "Pad002")
body.addObject(pad3)
pad3.Profile = sketch13
pad3.setExpression("Length", "Params.pad3_length")

doc.recompute()
